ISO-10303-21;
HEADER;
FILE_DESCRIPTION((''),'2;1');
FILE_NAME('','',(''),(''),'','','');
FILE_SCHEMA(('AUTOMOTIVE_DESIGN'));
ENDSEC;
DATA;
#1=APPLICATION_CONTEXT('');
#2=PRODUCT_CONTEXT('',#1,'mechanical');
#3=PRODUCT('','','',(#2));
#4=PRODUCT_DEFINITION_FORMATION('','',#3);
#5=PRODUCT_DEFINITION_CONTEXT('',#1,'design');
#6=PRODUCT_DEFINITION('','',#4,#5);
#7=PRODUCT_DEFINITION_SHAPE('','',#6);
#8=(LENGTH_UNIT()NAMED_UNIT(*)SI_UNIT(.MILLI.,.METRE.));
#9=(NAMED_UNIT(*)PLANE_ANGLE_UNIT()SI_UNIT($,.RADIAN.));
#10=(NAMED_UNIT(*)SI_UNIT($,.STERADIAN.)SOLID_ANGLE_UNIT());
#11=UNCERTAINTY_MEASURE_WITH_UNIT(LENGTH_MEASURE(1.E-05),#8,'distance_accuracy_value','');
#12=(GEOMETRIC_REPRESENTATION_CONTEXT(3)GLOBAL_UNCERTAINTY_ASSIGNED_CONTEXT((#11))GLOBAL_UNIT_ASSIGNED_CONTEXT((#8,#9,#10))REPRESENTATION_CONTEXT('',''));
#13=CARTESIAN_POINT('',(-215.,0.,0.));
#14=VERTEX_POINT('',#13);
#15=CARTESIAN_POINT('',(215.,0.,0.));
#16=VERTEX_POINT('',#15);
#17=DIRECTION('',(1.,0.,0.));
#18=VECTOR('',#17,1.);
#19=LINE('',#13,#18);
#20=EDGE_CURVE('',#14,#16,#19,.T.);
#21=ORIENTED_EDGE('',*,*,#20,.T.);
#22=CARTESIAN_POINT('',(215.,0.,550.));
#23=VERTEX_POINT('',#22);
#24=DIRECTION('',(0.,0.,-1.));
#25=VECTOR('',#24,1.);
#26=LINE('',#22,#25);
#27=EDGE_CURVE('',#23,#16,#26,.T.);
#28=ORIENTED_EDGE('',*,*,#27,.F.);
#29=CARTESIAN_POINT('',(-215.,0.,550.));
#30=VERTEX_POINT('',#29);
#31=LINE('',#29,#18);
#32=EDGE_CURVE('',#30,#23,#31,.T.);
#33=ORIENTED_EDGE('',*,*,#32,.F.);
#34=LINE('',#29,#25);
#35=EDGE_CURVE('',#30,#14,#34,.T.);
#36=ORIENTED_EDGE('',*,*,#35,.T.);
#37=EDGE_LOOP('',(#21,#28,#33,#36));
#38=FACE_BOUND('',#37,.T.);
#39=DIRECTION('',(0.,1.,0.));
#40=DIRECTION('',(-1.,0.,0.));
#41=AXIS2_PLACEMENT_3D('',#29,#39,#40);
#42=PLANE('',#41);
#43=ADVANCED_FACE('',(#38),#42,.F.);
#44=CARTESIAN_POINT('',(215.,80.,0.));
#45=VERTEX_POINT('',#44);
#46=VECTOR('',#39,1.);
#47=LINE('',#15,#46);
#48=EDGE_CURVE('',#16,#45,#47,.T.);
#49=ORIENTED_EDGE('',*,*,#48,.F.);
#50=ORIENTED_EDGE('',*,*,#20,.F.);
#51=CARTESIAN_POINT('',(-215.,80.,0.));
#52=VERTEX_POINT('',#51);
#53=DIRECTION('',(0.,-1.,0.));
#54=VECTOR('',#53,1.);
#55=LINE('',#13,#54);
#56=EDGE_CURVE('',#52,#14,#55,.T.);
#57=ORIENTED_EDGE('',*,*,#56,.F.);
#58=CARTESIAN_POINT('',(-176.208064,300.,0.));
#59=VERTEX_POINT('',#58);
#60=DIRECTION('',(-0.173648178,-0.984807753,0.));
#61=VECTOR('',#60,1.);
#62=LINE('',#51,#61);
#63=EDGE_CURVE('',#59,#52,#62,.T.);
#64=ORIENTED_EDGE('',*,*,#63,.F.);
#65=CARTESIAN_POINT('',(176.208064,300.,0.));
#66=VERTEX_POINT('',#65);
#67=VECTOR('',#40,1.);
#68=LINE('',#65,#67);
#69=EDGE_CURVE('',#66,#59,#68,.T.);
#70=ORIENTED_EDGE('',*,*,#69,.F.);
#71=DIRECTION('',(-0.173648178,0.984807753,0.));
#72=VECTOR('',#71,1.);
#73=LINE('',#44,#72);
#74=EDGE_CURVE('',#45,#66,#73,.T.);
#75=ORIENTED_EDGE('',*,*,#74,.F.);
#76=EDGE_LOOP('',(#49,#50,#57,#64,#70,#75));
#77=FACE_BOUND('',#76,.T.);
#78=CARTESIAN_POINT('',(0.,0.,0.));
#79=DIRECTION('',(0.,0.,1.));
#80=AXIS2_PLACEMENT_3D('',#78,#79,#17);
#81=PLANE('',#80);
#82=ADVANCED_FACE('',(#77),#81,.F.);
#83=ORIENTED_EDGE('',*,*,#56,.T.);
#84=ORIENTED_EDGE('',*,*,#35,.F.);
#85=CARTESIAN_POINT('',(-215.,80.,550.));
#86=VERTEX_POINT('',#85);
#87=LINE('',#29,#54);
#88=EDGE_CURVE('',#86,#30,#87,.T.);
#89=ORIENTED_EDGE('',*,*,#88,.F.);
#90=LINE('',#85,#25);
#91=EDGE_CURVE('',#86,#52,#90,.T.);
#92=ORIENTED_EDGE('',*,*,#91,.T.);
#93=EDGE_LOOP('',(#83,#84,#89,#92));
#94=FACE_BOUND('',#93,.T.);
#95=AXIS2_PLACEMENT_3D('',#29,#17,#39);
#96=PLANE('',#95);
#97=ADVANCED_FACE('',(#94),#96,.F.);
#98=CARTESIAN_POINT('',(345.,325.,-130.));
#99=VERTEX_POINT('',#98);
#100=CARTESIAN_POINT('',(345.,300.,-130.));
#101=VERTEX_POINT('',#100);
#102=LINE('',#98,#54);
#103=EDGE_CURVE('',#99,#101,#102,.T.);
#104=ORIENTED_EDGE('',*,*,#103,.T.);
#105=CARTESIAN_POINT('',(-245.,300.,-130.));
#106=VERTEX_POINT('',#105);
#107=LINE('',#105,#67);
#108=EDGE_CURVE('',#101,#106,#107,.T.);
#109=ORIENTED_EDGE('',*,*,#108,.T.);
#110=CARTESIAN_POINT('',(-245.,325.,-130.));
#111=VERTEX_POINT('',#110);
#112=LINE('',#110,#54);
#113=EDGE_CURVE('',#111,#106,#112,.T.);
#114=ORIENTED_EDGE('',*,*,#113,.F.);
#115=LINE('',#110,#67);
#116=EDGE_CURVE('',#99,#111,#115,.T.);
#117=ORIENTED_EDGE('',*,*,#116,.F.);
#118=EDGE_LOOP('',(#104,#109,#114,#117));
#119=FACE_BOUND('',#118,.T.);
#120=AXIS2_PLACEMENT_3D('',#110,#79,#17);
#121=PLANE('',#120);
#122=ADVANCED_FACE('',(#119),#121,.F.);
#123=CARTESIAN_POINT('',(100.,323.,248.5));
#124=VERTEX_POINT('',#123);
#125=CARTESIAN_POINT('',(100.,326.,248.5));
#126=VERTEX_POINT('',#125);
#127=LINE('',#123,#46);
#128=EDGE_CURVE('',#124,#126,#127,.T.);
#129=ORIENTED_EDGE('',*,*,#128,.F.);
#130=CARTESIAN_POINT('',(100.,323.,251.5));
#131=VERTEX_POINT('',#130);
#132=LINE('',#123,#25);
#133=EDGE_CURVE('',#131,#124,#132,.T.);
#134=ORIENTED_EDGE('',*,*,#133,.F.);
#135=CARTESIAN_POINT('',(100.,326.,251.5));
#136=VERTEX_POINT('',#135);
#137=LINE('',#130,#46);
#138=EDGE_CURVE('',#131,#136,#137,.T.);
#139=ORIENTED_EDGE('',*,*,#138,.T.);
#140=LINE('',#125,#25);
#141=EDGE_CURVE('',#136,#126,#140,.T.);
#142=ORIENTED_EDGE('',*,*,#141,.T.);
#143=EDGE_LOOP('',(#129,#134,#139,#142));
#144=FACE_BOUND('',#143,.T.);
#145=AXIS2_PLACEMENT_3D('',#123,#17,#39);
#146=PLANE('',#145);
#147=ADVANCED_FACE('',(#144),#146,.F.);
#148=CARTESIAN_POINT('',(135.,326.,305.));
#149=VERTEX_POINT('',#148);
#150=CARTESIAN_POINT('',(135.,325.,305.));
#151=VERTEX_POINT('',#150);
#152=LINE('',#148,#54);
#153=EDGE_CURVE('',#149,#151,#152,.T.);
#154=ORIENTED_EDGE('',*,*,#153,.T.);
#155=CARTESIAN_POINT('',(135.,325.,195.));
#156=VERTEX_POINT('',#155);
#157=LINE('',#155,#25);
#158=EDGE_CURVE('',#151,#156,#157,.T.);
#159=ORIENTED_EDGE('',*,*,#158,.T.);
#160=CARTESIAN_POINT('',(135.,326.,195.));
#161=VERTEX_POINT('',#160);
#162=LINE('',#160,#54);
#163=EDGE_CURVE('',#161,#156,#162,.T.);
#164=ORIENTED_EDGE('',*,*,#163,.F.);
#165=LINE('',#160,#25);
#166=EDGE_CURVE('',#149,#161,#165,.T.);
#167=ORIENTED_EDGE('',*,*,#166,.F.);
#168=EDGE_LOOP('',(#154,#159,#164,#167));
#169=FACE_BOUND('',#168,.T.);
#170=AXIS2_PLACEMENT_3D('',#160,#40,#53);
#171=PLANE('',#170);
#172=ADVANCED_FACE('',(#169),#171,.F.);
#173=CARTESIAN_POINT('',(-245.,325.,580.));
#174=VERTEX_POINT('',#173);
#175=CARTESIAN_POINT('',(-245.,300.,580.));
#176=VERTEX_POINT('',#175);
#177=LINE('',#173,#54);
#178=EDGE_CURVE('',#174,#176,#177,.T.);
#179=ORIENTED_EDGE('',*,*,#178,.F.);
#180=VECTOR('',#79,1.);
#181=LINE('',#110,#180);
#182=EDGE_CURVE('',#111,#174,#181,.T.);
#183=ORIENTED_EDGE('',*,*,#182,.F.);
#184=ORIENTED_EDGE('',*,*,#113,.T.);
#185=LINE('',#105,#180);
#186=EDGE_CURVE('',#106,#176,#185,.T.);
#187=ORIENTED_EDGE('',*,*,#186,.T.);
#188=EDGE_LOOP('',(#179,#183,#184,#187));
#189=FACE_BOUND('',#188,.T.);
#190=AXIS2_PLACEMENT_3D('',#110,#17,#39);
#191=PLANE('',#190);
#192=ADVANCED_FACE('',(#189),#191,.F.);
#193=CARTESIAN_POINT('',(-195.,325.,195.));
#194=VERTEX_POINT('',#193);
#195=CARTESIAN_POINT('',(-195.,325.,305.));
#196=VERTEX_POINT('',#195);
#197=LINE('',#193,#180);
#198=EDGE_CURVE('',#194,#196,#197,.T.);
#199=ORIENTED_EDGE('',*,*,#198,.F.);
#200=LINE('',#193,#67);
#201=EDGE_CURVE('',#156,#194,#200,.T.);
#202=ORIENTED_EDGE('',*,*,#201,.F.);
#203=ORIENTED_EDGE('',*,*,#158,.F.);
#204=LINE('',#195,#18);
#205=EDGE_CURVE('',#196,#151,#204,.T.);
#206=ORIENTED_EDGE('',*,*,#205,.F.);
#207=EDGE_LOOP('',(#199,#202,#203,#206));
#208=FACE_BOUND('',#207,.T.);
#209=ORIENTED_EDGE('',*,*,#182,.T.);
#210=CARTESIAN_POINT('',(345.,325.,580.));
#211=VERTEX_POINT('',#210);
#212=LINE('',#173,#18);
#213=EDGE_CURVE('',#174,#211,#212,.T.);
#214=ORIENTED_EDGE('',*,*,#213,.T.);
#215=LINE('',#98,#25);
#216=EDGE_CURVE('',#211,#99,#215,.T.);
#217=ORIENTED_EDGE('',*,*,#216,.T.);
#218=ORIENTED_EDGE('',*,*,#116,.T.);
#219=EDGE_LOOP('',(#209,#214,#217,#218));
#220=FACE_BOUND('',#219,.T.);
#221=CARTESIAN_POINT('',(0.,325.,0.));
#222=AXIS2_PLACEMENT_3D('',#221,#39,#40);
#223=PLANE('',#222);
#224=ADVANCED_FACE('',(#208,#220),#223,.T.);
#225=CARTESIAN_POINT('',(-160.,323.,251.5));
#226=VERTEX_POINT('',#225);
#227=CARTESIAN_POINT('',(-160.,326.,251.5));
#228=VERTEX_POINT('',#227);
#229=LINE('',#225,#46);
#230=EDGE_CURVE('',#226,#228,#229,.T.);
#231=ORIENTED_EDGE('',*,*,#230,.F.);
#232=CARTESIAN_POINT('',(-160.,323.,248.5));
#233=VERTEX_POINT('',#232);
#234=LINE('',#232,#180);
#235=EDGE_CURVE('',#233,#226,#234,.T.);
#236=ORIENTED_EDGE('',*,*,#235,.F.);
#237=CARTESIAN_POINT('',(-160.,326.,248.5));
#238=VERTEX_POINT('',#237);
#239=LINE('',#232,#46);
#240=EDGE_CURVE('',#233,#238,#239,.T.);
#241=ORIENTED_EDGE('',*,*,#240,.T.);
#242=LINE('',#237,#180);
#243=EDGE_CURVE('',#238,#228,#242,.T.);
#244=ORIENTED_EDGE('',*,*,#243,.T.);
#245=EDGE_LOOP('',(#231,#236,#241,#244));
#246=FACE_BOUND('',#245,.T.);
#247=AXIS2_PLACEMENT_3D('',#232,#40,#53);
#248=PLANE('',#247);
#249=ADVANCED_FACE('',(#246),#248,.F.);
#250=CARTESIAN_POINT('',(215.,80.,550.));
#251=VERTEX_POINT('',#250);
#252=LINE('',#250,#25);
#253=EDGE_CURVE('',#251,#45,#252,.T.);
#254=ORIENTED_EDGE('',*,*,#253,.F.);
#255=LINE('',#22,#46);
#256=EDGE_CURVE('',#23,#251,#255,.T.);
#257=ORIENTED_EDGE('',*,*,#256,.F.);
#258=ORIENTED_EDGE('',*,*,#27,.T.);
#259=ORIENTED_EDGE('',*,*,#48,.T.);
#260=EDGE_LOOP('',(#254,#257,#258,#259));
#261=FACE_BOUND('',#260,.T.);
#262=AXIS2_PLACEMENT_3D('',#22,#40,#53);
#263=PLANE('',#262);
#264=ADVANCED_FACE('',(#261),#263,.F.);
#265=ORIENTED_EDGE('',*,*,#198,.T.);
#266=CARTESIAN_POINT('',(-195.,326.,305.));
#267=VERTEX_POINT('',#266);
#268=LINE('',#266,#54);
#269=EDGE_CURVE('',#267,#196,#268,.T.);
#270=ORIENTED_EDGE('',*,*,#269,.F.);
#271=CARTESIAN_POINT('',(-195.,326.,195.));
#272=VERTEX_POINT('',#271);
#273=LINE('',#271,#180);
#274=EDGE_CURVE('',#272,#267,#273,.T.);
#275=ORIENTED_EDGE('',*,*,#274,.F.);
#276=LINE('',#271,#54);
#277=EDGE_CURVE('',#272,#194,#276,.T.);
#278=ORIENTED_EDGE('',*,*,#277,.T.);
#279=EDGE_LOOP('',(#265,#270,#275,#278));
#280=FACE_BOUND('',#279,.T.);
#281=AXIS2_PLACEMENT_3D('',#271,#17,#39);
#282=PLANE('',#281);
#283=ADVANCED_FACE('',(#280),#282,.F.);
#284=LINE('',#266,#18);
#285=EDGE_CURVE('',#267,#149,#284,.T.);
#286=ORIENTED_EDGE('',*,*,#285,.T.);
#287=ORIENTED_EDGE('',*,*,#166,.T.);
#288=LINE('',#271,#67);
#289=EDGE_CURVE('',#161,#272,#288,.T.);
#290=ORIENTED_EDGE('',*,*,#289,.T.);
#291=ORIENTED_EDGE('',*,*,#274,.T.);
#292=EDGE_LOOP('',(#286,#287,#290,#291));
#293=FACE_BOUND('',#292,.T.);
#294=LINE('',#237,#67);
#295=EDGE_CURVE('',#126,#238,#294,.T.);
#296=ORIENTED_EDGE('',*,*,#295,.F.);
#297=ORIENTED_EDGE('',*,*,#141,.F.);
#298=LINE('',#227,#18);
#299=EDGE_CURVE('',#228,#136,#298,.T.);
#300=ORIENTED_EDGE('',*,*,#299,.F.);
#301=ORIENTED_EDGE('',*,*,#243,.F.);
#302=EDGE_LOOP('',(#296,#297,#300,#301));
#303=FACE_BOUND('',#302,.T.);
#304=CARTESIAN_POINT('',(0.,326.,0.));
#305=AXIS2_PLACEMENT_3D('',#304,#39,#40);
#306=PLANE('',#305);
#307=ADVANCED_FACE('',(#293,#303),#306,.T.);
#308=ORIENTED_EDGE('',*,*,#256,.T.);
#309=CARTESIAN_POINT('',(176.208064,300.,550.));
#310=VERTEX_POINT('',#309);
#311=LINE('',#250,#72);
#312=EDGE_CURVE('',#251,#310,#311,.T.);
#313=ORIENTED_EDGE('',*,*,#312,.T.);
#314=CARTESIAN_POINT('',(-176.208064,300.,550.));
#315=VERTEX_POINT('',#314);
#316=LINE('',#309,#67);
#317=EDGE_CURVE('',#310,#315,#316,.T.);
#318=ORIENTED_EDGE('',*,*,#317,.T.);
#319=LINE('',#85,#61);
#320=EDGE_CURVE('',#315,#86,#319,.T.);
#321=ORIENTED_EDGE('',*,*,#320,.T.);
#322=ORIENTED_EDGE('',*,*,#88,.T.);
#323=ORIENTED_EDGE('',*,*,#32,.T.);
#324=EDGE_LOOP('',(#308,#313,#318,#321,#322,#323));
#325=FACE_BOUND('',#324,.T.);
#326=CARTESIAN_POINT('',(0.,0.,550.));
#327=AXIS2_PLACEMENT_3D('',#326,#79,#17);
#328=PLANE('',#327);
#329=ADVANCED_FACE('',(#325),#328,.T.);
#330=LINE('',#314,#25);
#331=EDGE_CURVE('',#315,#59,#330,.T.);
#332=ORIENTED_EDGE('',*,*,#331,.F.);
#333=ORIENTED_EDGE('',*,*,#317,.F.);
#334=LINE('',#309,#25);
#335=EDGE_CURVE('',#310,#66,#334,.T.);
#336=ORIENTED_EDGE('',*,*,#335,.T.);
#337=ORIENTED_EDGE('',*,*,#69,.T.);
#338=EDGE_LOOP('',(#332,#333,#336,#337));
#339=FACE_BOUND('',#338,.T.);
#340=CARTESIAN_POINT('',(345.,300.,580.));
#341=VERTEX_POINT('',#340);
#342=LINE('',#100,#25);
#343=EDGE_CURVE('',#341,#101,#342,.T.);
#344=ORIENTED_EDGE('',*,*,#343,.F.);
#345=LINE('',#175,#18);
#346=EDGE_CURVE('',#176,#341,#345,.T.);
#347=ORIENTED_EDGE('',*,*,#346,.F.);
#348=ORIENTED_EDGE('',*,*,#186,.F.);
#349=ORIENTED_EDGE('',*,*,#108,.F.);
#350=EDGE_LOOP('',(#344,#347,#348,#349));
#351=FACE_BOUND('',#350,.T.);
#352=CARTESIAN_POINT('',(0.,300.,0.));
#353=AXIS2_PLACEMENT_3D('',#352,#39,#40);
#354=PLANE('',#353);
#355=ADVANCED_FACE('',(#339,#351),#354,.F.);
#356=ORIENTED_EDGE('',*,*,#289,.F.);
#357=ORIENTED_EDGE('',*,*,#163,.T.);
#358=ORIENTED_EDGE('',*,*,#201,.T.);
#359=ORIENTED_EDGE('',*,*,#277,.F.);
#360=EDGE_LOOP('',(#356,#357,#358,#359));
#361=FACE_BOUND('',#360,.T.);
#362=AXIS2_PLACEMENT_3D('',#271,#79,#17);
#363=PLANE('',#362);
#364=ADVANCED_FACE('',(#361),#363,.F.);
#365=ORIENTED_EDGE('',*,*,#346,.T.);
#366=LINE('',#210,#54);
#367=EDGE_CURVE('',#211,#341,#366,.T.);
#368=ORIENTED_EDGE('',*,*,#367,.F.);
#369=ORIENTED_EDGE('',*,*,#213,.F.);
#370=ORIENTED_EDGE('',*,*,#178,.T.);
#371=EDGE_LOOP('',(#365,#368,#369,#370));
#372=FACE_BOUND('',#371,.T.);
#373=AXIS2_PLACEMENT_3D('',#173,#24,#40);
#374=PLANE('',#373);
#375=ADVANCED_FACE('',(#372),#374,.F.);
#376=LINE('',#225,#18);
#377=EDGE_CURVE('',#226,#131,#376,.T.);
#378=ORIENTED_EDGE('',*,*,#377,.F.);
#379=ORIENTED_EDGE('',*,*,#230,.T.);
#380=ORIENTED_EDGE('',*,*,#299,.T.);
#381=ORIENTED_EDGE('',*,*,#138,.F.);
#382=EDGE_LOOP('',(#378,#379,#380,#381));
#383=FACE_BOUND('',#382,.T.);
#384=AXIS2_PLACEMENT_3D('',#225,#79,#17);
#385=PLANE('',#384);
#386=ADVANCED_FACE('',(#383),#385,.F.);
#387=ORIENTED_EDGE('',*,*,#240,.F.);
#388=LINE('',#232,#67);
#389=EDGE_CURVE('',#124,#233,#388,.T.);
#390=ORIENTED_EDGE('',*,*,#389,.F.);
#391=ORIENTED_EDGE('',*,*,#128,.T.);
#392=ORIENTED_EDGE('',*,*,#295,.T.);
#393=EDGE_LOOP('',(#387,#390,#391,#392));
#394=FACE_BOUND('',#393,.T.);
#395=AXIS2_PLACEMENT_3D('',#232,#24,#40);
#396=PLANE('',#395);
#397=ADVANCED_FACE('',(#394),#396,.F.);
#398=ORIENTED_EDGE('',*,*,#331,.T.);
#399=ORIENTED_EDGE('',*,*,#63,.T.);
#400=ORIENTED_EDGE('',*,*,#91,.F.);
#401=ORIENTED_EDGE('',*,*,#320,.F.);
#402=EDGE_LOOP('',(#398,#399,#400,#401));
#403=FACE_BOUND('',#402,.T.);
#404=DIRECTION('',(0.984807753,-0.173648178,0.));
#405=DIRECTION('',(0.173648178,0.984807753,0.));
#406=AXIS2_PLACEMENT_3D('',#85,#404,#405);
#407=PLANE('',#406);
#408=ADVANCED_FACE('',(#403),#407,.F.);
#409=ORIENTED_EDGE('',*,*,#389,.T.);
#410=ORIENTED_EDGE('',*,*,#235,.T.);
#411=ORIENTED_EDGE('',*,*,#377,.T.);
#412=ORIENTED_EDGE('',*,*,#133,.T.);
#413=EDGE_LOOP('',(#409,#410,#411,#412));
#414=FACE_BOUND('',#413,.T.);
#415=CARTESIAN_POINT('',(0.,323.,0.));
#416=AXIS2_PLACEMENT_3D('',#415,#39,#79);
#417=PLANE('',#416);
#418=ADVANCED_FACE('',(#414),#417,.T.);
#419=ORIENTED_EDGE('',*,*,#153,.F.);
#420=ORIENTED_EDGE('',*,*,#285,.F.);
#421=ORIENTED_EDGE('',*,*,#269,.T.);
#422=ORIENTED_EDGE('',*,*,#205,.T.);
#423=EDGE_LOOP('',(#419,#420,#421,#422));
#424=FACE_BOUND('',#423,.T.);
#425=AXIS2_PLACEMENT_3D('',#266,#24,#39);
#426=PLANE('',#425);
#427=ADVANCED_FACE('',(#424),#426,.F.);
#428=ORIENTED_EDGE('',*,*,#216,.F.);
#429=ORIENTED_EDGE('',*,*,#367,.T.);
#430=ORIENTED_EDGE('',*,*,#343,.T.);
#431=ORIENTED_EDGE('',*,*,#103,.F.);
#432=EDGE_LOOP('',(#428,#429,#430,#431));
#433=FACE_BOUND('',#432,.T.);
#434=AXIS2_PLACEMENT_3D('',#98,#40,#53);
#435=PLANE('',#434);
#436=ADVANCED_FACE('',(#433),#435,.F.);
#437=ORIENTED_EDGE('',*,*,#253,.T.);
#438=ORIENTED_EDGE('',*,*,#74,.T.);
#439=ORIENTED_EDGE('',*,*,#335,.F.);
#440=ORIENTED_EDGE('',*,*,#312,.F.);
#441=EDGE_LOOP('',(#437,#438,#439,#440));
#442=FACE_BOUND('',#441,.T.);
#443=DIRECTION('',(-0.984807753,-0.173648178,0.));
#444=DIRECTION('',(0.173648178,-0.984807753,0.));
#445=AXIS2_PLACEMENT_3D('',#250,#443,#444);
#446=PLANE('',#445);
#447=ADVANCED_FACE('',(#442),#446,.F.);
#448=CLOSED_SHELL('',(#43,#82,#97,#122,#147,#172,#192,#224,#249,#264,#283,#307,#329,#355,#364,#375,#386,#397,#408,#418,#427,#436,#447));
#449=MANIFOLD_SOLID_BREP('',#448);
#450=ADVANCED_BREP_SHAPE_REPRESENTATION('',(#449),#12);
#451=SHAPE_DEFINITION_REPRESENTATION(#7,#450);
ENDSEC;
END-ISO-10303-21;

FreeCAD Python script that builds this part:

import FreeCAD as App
import Part
import Sketcher
Q = App.Units.Quantity


def add_polygon(sketch, points):
    """Adds a closed chain of lines whose ends are joined by coincident constraints."""
    first, n = sketch.GeometryCount, len(points)
    for a, b in zip(points, points[1:] + points[:1]):
        sketch.addGeometry(Part.LineSegment(App.Vector(*a, 0), App.Vector(*b, 0)), False)
    for i in range(n):
        sketch.addConstraint(Sketcher.Constraint("Coincident", first + i, 2, first + (i + 1) % n, 1))

doc = App.newDocument("Part")
body = doc.addObject("PartDesign::Body", "Body")

# Sketch on XY plane
sketch1 = doc.addObject("Sketcher::SketchObject", "Sketch")
body.addObject(sketch1)
sketch1.AttachmentSupport = (doc.XY_Plane, [""])
sketch1.MapMode = "FlatFace"
add_polygon(sketch1, [(-215, 0), (215, 0), (215, 80), (176.208064, 300), (-176.208064, 300), (-215, 80)])  # lines 0-5
sketch1.addConstraint(Sketcher.Constraint("Horizontal", 0))
sketch1.addConstraint(Sketcher.Constraint("Vertical", 1))
sketch1.addConstraint(Sketcher.Constraint("Horizontal", 3))
sketch1.addConstraint(Sketcher.Constraint("Vertical", 5))
sketch1.addConstraint(Sketcher.Constraint("Symmetric", 0, 2, 5, 2, -1, 1))
sketch1.addConstraint(Sketcher.Constraint("Horizontal", 1, 2, 4, 2))
sketch1.addConstraint(Sketcher.Constraint("Equal", 2, 4))
sketch1.addConstraint(Sketcher.Constraint("DistanceX", 0, 1, 0, 2, 430.0))
sketch1.addConstraint(Sketcher.Constraint("DistanceY", 1, 1, 1, 2, 80.0))
sketch1.addConstraint(Sketcher.Constraint("Angle", 2, Q("100 deg")))
sketch1.addConstraint(Sketcher.Constraint("DistanceY", -1, 1, 2, 2, 300.0))
pad1 = doc.addObject("PartDesign::Pad", "Pad")
body.addObject(pad1)
pad1.Profile = sketch1
pad1.Length = 550

# Sketch on XZ plane
sketch2 = doc.addObject("Sketcher::SketchObject", "Sketch001")
body.addObject(sketch2)
sketch2.AttachmentSupport = (doc.XZ_Plane, [""])
sketch2.MapMode = "FlatFace"
sketch2.AttachmentOffset = App.Placement(App.Vector(0, 0, -300), App.Rotation())
add_polygon(sketch2, [(-245, -130), (-245, 580), (345, 580), (345, -130)])  # lines 0-3
sketch2.addConstraint(Sketcher.Constraint("Vertical", 0))
sketch2.addConstraint(Sketcher.Constraint("Horizontal", 1))
sketch2.addConstraint(Sketcher.Constraint("Vertical", 2))
sketch2.addConstraint(Sketcher.Constraint("Horizontal", 3))
sketch2.addConstraint(Sketcher.Constraint("DistanceX", 1, 1, 1, 2, 590.0))
sketch2.addConstraint(Sketcher.Constraint("DistanceY", 0, 1, 0, 2, 710.0))
sketch2.addConstraint(Sketcher.Constraint("DistanceX", 0, 2, -1, 1, 245.0))
sketch2.addConstraint(Sketcher.Constraint("DistanceY", -1, 1, 0, 2, 580.0))
pad2 = doc.addObject("PartDesign::Pad", "Pad001")
body.addObject(pad2)
pad2.Profile = sketch2
pad2.Length = 25
pad2.Reversed = True

# Sketch on XZ plane
sketch3 = doc.addObject("Sketcher::SketchObject", "Sketch002")
body.addObject(sketch3)
sketch3.AttachmentSupport = (doc.XZ_Plane, [""])
sketch3.MapMode = "FlatFace"
sketch3.AttachmentOffset = App.Placement(App.Vector(0, 0, -325), App.Rotation())
add_polygon(sketch3, [(-195, 195), (-195, 305), (135, 305), (135, 195)])  # lines 0-3
sketch3.addConstraint(Sketcher.Constraint("Vertical", 0))
sketch3.addConstraint(Sketcher.Constraint("Horizontal", 1))
sketch3.addConstraint(Sketcher.Constraint("Vertical", 2))
sketch3.addConstraint(Sketcher.Constraint("Horizontal", 3))
sketch3.addConstraint(Sketcher.Constraint("DistanceX", 1, 1, 1, 2, 330.0))
sketch3.addConstraint(Sketcher.Constraint("DistanceY", 0, 1, 0, 2, 110.0))
sketch3.addConstraint(Sketcher.Constraint("DistanceX", 0, 2, -1, 1, 195.0))
sketch3.addConstraint(Sketcher.Constraint("DistanceY", -1, 1, 0, 2, 305.0))
pad3 = doc.addObject("PartDesign::Pad", "Pad002")
body.addObject(pad3)
pad3.Profile = sketch3
pad3.Length = 1
pad3.Reversed = True

# Sketch on XZ plane
sketch4 = doc.addObject("Sketcher::SketchObject", "Sketch003")
body.addObject(sketch4)
sketch4.AttachmentSupport = (doc.XZ_Plane, [""])
sketch4.MapMode = "FlatFace"
sketch4.AttachmentOffset = App.Placement(App.Vector(0, 0, -326), App.Rotation())
add_polygon(sketch4, [(-160, 248.5), (-160, 251.5), (100, 251.5), (100, 248.5)])  # lines 0-3
sketch4.addConstraint(Sketcher.Constraint("Vertical", 0))
sketch4.addConstraint(Sketcher.Constraint("Horizontal", 1))
sketch4.addConstraint(Sketcher.Constraint("Vertical", 2))
sketch4.addConstraint(Sketcher.Constraint("Horizontal", 3))
sketch4.addConstraint(Sketcher.Constraint("DistanceX", 1, 1, 1, 2, 260.0))
sketch4.addConstraint(Sketcher.Constraint("DistanceY", 0, 1, 0, 2, 3.0))
sketch4.addConstraint(Sketcher.Constraint("DistanceX", 0, 2, -1, 1, 160.0))
sketch4.addConstraint(Sketcher.Constraint("DistanceY", -1, 1, 0, 2, 251.5))
pocket1 = doc.addObject("PartDesign::Pocket", "Pocket")
body.addObject(pocket1)
pocket1.Profile = sketch4
pocket1.Length = 3
pocket1.Reversed = True

doc.recompute()
